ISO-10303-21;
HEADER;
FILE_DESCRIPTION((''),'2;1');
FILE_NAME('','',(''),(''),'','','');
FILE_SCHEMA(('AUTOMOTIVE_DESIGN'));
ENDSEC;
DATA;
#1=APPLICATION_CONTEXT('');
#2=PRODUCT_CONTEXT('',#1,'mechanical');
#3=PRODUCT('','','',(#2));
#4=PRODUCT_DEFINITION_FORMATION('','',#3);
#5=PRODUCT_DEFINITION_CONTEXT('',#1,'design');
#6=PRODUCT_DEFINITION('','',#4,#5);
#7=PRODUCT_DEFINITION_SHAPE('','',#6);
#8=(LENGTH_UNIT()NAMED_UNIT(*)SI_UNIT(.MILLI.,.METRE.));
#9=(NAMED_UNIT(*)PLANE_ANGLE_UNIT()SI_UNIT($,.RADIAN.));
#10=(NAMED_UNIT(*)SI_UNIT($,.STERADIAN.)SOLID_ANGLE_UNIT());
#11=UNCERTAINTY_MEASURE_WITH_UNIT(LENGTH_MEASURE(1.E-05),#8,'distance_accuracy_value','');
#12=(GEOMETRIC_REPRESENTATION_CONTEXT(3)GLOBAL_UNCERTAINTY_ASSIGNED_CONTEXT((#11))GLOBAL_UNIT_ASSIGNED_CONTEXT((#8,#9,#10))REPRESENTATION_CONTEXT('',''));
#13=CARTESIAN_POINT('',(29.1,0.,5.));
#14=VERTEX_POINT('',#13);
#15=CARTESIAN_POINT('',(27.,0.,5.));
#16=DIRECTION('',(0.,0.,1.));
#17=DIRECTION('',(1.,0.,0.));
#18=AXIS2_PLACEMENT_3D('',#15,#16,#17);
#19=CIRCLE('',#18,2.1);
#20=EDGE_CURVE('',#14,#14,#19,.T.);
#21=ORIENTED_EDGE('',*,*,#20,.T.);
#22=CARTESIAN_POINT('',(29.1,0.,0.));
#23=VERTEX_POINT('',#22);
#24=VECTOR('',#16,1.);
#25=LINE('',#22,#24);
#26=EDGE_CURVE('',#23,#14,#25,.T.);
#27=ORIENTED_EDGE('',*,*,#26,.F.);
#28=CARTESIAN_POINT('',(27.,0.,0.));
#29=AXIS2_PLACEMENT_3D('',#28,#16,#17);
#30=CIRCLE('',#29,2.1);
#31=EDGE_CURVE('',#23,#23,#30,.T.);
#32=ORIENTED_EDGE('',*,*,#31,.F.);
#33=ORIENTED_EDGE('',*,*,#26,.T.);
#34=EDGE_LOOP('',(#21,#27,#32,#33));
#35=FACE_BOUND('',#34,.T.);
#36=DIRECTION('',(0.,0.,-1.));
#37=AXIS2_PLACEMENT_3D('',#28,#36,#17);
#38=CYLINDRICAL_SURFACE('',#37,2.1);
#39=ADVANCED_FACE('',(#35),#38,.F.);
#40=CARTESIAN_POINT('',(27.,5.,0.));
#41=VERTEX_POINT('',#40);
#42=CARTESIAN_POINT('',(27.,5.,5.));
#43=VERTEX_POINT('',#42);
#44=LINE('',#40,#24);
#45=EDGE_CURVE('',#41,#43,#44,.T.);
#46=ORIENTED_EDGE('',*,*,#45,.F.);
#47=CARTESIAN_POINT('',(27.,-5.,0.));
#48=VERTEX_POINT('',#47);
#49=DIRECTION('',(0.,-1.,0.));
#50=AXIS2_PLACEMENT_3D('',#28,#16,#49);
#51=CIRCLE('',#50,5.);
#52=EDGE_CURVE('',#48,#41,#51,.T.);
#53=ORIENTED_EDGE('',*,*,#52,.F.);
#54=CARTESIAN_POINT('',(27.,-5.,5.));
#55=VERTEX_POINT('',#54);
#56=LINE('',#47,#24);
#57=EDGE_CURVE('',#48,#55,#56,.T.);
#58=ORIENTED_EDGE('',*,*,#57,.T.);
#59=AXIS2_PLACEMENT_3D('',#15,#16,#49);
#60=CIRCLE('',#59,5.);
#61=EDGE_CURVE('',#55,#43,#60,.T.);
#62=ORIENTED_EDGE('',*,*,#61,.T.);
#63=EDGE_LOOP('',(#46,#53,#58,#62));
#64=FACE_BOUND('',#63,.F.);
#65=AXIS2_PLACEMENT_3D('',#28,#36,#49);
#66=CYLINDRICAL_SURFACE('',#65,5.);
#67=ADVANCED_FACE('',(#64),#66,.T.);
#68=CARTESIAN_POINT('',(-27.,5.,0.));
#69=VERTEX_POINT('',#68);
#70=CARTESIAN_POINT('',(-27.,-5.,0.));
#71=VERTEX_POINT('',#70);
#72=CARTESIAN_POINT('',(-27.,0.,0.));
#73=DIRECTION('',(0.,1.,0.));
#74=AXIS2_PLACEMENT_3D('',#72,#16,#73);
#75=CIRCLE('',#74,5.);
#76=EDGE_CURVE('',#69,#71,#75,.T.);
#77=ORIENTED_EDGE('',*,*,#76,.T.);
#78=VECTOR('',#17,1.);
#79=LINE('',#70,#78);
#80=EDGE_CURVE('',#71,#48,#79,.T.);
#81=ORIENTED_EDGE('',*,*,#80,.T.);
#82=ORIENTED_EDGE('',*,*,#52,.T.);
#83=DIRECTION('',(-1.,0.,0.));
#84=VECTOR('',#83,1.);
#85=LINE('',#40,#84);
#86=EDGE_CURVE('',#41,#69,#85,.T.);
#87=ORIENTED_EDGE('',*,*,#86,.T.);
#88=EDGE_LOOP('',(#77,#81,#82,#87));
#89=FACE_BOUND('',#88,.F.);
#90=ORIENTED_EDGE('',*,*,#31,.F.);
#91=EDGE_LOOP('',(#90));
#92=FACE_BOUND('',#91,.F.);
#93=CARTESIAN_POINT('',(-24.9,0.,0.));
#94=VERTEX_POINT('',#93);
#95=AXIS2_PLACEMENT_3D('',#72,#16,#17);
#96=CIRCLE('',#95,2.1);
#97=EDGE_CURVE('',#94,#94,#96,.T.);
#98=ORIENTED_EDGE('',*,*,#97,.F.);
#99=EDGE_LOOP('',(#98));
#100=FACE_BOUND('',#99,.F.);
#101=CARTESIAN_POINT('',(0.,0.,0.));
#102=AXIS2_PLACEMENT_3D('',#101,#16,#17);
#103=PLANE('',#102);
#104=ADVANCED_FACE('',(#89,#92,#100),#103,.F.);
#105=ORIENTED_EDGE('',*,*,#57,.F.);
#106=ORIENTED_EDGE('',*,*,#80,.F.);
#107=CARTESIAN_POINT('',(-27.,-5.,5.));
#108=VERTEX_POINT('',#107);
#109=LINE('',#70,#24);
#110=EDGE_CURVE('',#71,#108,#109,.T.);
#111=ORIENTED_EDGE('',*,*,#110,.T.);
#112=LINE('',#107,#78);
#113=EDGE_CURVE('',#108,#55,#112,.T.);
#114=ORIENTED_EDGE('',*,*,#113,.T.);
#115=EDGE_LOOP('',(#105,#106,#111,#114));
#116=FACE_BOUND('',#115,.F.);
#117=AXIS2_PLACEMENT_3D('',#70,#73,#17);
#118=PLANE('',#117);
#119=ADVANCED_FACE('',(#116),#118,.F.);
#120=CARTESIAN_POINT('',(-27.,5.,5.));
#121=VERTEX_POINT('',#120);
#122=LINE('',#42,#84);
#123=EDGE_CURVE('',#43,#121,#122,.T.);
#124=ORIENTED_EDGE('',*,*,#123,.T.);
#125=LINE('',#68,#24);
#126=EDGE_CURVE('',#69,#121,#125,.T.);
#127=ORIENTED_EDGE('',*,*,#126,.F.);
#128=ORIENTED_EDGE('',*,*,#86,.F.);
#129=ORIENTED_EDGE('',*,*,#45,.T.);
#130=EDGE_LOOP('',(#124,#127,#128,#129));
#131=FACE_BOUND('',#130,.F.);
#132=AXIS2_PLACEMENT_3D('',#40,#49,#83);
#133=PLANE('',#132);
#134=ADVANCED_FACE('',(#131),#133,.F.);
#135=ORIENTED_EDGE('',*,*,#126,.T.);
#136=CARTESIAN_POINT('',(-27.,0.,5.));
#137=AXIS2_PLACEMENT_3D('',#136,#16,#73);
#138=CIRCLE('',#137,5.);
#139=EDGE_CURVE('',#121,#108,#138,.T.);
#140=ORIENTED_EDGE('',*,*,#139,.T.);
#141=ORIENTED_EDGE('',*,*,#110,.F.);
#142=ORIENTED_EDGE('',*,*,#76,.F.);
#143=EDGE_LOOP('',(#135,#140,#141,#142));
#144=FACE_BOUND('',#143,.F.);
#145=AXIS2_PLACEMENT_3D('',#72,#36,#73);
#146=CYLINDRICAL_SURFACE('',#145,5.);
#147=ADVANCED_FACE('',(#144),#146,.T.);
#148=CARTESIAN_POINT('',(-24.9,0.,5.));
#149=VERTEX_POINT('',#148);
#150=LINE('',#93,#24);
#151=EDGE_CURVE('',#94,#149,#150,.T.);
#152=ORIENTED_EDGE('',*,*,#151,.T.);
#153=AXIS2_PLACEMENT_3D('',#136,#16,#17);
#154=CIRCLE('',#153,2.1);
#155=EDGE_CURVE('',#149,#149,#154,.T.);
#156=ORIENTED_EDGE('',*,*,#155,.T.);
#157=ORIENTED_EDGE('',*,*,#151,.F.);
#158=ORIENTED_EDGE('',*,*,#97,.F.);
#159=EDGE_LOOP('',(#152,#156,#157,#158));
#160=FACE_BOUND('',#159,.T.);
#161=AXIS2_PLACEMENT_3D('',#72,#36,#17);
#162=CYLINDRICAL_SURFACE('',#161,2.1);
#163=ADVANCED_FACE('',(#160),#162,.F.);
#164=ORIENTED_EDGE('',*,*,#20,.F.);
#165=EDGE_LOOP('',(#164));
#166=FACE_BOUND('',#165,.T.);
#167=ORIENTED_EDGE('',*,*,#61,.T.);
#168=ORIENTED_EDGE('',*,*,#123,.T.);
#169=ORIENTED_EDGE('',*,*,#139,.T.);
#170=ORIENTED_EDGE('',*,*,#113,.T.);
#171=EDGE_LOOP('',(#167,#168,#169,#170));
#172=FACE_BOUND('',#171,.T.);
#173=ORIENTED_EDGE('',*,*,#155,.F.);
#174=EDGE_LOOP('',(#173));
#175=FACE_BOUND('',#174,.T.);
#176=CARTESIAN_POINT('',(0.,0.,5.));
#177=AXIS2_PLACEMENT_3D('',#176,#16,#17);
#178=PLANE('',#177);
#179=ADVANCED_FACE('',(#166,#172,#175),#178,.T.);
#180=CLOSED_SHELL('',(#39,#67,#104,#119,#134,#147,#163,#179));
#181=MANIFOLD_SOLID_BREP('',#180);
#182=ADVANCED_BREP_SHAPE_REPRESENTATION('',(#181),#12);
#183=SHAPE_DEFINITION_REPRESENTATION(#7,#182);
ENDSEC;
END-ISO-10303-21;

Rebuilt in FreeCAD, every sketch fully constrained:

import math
import FreeCAD as App
import Part
import Sketcher
from FreeCAD import Vector
Q = App.Units.Quantity

doc = App.newDocument("Part")
body = doc.addObject("PartDesign::Body", "Body")

# Sketch on XY plane
sketch1 = body.newObject("Sketcher::SketchObject", "Sketch")
sketch1.AttachmentSupport = (doc.getObject("XY_Plane"), [""])
sketch1.MapMode = "FlatFace"
sketch1.addGeometry([
    Part.ArcOfCircle(Part.Circle(Vector(-27, 0, 0), Vector(0, 0, 1), 5), math.radians(90), math.radians(270)),  # 0
    Part.LineSegment(Vector(-27, -5, 0), Vector(27, -5, 0)),  # 1
    Part.ArcOfCircle(Part.Circle(Vector(27, 0, 0), Vector(0, 0, 1), 5), math.radians(-90), math.radians(90)),  # 2
    Part.LineSegment(Vector(27, 5, 0), Vector(-27, 5, 0)),  # 3
    Part.Circle(Vector(-27, 0, 0), Vector(0, 0, 1), 2.1),  # 4
    Part.Circle(Vector(27, 0, 0), Vector(0, 0, 1), 2.1),  # 5
], False)
sketch1.addConstraint([
    Sketcher.Constraint("Tangent", 0, 2, 1, 1),
    Sketcher.Constraint("Tangent", 1, 2, 2, 1),
    Sketcher.Constraint("Tangent", 2, 2, 3, 1),
    Sketcher.Constraint("Tangent", 3, 2, 0, 1),
    Sketcher.Constraint("Horizontal", 1),
    Sketcher.Constraint("Horizontal", 3),
    Sketcher.Constraint("Coincident", 4, 3, 0, 3),
    Sketcher.Constraint("Coincident", 5, 3, 2, 3),
    Sketcher.Constraint("Equal", 4, 5),
    Sketcher.Constraint("Symmetric", 0, 3, 2, 3, -1, 1),
    Sketcher.Constraint("Radius", 0, Q("5 mm")),
    Sketcher.Constraint("Diameter", 4, Q("4.2 mm")),
    Sketcher.Constraint("DistanceX", 1, 1, 1, 2, Q("54 mm")),
])
pad1 = body.newObject("PartDesign::Pad", "Pad")
pad1.Profile = sketch1
pad1.Length = 5

doc.recompute()
